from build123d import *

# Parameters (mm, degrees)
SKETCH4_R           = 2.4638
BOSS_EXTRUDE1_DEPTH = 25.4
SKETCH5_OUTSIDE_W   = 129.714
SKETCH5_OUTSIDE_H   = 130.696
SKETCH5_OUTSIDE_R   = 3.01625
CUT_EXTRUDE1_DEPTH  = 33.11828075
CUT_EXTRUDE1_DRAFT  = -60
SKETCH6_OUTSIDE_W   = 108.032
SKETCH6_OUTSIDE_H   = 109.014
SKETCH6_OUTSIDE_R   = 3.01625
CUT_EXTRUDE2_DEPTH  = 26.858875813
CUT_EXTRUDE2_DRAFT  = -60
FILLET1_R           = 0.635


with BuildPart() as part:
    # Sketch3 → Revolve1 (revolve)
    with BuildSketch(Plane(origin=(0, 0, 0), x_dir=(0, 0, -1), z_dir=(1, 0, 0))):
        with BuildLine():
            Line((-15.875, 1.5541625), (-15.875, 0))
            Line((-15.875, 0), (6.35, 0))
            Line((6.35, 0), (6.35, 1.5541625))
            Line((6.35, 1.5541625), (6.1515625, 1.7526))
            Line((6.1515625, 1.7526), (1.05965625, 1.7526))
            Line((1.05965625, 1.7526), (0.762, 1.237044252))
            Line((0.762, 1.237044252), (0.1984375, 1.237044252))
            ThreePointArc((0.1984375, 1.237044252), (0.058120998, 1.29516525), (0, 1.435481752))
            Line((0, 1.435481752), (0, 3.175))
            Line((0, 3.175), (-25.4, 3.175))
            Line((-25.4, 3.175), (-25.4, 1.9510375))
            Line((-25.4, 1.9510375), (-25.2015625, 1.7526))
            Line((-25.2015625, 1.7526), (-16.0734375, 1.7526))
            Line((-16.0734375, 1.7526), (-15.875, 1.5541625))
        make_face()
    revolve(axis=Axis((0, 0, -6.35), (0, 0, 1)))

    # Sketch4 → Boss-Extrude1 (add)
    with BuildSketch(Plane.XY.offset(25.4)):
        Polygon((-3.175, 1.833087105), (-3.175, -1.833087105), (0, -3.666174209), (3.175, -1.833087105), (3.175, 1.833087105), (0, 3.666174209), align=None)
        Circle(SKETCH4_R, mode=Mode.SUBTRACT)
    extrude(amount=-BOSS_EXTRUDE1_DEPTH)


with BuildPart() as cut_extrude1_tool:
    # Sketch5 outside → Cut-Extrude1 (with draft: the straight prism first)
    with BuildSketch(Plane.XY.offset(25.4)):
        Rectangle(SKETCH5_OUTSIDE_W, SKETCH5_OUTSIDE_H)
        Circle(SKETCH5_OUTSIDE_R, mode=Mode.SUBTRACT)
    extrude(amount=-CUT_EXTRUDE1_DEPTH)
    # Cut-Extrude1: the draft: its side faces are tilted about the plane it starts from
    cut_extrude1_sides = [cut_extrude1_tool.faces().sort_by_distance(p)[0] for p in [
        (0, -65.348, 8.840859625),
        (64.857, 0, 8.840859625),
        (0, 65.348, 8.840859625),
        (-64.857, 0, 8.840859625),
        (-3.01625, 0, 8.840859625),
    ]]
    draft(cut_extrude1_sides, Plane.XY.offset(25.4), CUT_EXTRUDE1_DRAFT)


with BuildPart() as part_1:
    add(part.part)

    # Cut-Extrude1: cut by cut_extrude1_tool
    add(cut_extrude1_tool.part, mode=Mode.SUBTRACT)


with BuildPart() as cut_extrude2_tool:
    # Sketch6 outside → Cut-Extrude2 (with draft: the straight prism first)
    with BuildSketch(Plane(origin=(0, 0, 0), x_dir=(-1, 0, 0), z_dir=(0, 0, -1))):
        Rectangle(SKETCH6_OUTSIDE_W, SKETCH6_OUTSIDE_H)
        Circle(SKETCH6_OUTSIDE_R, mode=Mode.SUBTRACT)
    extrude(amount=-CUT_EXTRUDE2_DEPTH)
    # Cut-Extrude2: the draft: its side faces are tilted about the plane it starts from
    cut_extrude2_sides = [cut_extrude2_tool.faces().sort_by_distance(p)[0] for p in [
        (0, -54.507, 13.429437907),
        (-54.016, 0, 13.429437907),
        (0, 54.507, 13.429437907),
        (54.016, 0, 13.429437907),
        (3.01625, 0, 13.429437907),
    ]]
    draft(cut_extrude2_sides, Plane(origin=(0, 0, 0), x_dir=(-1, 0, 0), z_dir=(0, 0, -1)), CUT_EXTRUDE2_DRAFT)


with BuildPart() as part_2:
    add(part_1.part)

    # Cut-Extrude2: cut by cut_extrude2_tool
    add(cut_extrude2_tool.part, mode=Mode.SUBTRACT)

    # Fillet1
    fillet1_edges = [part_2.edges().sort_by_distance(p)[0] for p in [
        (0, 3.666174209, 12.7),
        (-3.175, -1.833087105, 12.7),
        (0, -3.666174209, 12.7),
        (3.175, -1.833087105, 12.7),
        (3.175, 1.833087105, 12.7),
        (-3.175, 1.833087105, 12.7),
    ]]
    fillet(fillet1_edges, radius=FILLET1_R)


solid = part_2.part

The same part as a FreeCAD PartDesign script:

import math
import FreeCAD as App
import Part
import Sketcher
Q = App.Units.Quantity


def edges_at(feature, points):
    """Names of the edges that pass closest to the given points."""
    edges = feature.Shape.Edges
    near = lambda p: min(range(len(edges)), key=lambda i: edges[i].distToShape(Part.Vertex(*p))[0])
    return sorted({f"Edge{near(p) + 1}" for p in points})


def faces_at(feature, points):
    """Names of the faces that lie closest to the given points."""
    faces = feature.Shape.Faces
    near = lambda p: min(range(len(faces)), key=lambda i: faces[i].distToShape(Part.Vertex(*p))[0])
    return sorted({f"Face{near(p) + 1}" for p in points})


def add_polygon(sketch, points):
    """Adds a closed chain of lines whose ends are joined by coincident constraints."""
    first, n = sketch.GeometryCount, len(points)
    for a, b in zip(points, points[1:] + points[:1]):
        sketch.addGeometry(Part.LineSegment(App.Vector(*a, 0), App.Vector(*b, 0)), False)
    for i in range(n):
        sketch.addConstraint(Sketcher.Constraint("Coincident", first + i, 2, first + (i + 1) % n, 1))

doc = App.newDocument("Part")
params = doc.addObject("Spreadsheet::Sheet", "Params")
for row, (alias, value) in enumerate([
    ("sketch1_height", "1 in"),
    ("sketch1_height2", "0.875 in"),
    ("sketch1_height3", "0.359375 in"),
    ("revolution_angle", "360 deg"),
    ("sketch2_diameter", "0.194 in"),
    ("pad1_length", "1 in"),
    ("pad2_length", "33.118281 mm"),
    ("draft_angle", "60 deg"),
    ("pad3_length", "26.858876 mm"),
    ("draft2_angle", "60 deg"),
    ("fillet_radius", "0.025 in"),
], start=1):
    params.set(f"A{row}", alias)
    params.set(f"B{row}", "=" + value)
    params.setAlias(f"B{row}", alias)

body = doc.addObject("PartDesign::Body", "Body")

sketch1 = body.newObject("Sketcher::SketchObject", "Sketch")
sketch1.AttachmentSupport = (doc.getObject("YZ_Plane"), [""])
sketch1.MapMode = "FlatFace"
sketch1.addGeometry([
    Part.LineSegment(App.Vector(1.55, 15.88, 0), App.Vector(0, 15.88, 0)),
    Part.LineSegment(App.Vector(0, 15.88, 0), App.Vector(0, -6.35, 0)),
    Part.LineSegment(App.Vector(0, -6.35, 0), App.Vector(1.55, -6.35, 0)),
    Part.LineSegment(App.Vector(1.55, -6.35, 0), App.Vector(1.75, -6.15, 0)),
    Part.LineSegment(App.Vector(1.75, -6.15, 0), App.Vector(1.75, -1.06, 0)),
    Part.LineSegment(App.Vector(1.75, -1.06, 0), App.Vector(1.24, -0.76, 0)),
    Part.LineSegment(App.Vector(1.24, -0.76, 0), App.Vector(1.24, -0.2, 0)),
    Part.ArcOfCircle(Part.Circle(App.Vector(1.44, -0.2, 0), App.Vector(0, 0, 1), 0.2), math.radians(90), math.radians(180)),
    Part.LineSegment(App.Vector(1.44, 0, 0), App.Vector(3.17, 0, 0)),
    Part.LineSegment(App.Vector(3.17, 0, 0), App.Vector(3.17, 25.4, 0)),
    Part.LineSegment(App.Vector(3.17, 25.4, 0), App.Vector(1.95, 25.4, 0)),
    Part.LineSegment(App.Vector(1.95, 25.4, 0), App.Vector(1.75, 25.2, 0)),
    Part.LineSegment(App.Vector(1.75, 25.2, 0), App.Vector(1.75, 16.07, 0)),
    Part.LineSegment(App.Vector(1.75, 16.07, 0), App.Vector(1.55, 15.88, 0)),
], False)
sketch1.addConstraint([
    Sketcher.Constraint("Coincident", 0, 2, 1, 1),
    Sketcher.Constraint("Coincident", 1, 2, 2, 1),
    Sketcher.Constraint("Coincident", 2, 2, 3, 1),
    Sketcher.Constraint("Coincident", 3, 2, 4, 1),
    Sketcher.Constraint("Coincident", 4, 2, 5, 1),
    Sketcher.Constraint("Coincident", 5, 2, 6, 1),
    Sketcher.Constraint("Tangent", 6, 2, 7, 2),
    Sketcher.Constraint("Tangent", 7, 1, 8, 1),
    Sketcher.Constraint("Coincident", 8, 2, 9, 1),
    Sketcher.Constraint("Coincident", 9, 2, 10, 1),
    Sketcher.Constraint("Coincident", 10, 2, 11, 1),
    Sketcher.Constraint("Coincident", 11, 2, 12, 1),
    Sketcher.Constraint("Coincident", 12, 2, 13, 1),
    Sketcher.Constraint("Coincident", 13, 2, 0, 1),
    Sketcher.Constraint("Horizontal", 0),
    Sketcher.Constraint("Vertical", 1),
    Sketcher.Constraint("Horizontal", 2),
    Sketcher.Constraint("Vertical", 4),
    Sketcher.Constraint("Vertical", 6),
    Sketcher.Constraint("Horizontal", 8),
    Sketcher.Constraint("Vertical", 9),
    Sketcher.Constraint("Horizontal", 10),
    Sketcher.Constraint("Vertical", 12),
    Sketcher.Constraint("PointOnObject", 0, 2, -2),
    Sketcher.Constraint("PointOnObject", 7, 1, -1),
    Sketcher.Constraint("Parallel", 3, 11),
    Sketcher.Constraint("Parallel", 11, 13),
    Sketcher.Constraint("Vertical", 4, 2, 11, 2),
    Sketcher.Constraint("Vertical", 2, 2, 13, 2),
    Sketcher.Constraint("Equal", 3, 11),
    Sketcher.Constraint("DistanceY", 9, 1, 9, 2, Q("1 in")),
    Sketcher.Constraint("Angle", 3, Q("45 deg")),
    Sketcher.Constraint("Angle", 5, Q("150 deg")),
    Sketcher.Constraint("DistanceY", 1, 2, 1, 1, Q("0.875 in")),
    Sketcher.Constraint("DistanceY", 12, 2, 12, 1, Q("0.359375 in")),
    Sketcher.Constraint("DistanceY", 1, 2, -1, 1, Q("0.25 in")),
    Sketcher.Constraint("DistanceY", 5, 2, -1, 1, Q("0.03 in")),
    Sketcher.Constraint("DistanceX", -1, 1, 3, 2, Q("0.069 in")),
    Sketcher.Constraint("DistanceX", -1, 1, 8, 2, Q("0.125 in")),
    Sketcher.Constraint("DistanceY", 3, 2, 7, 3, Q("0.234375 in")),
    Sketcher.Constraint("DistanceX", 8, 1, 8, 2, Q("1.739518 mm")),
])
sketch1.setExpression("Constraints[30]", "Params.sketch1_height")
sketch1.setExpression("Constraints[33]", "Params.sketch1_height2")
sketch1.setExpression("Constraints[34]", "Params.sketch1_height3")
revolution = body.newObject("PartDesign::Revolution", "Revolution")
revolution.Profile = sketch1
revolution.ReferenceAxis = (sketch1, ["V_Axis"])
revolution.setExpression("Angle", "Params.revolution_angle")

sketch2 = body.newObject("Sketcher::SketchObject", "Sketch001")
sketch2.AttachmentSupport = (doc.getObject("XY_Plane"), [""])
sketch2.MapMode = "FlatFace"
sketch2.AttachmentOffset = App.Placement(App.Vector(0, 0, 1 * 25.4), App.Rotation())
add_polygon(sketch2, [(-3.2, 1.8), (-3.2, -1.8), (0, -3.7), (3.2, -1.8), (3.2, 1.8), (0, 3.7)])
sketch2.addGeometry(Part.Circle(App.Vector(0, 0, 0), App.Vector(0, 0, 1), 2.5), False)
sketch2.addConstraint([
    Sketcher.Constraint("Vertical", 0),
    Sketcher.Constraint("Vertical", 3),
    Sketcher.Constraint("Coincident", 6, 3, -1, 1),
    Sketcher.Constraint("Symmetric", 0, 2, 3, 2, -1, 1),
    Sketcher.Constraint("Symmetric", 1, 2, 4, 2, -1, 1),
    Sketcher.Constraint("PointOnObject", 1, 2, -2),
    Sketcher.Constraint("Parallel", 2, 5),
    Sketcher.Constraint("Horizontal", 0, 2, 2, 2),
    Sketcher.Constraint("Diameter", 6, Q("0.194 in")),
    Sketcher.Constraint("Angle", 1, Q("-30 deg")),
    Sketcher.Constraint("DistanceX", 0, 2, 2, 2, Q("0.25 in")),
    Sketcher.Constraint("DistanceY", 0, 2, 0, 1, Q("3.666174 mm")),
])
sketch2.setExpression("Constraints[14]", "Params.sketch2_diameter")
pad1 = body.newObject("PartDesign::Pad", "Pad")
pad1.Profile = sketch2
pad1.setExpression("Length", "Params.pad1_length")
pad1.Reversed = True
body2 = doc.addObject("PartDesign::Body", "Body001")

sketch3 = body2.newObject("Sketcher::SketchObject", "Sketch002")
sketch3.AttachmentSupport = (doc.getObject("XY_Plane001"), [""])
sketch3.MapMode = "FlatFace"
sketch3.AttachmentOffset = App.Placement(App.Vector(0, 0, 1 * 25.4), App.Rotation())
add_polygon(sketch3, [(-64.9, 65.3), (-64.9, -65.3), (64.9, -65.3), (64.9, 65.3)])
sketch3.addGeometry(Part.Circle(App.Vector(0, 0, 0), App.Vector(0, 0, 1), 3), False)
sketch3.addConstraint([
    Sketcher.Constraint("Vertical", 0),
    Sketcher.Constraint("Horizontal", 1),
    Sketcher.Constraint("Vertical", 2),
    Sketcher.Constraint("Horizontal", 3),
    Sketcher.Constraint("Coincident", 4, 3, -1, 1),
    Sketcher.Constraint("Symmetric", 0, 2, 2, 2, -1, 1),
    Sketcher.Constraint("Diameter", 4, Q("0.2375 in")),
    Sketcher.Constraint("DistanceX", 1, 1, 1, 2, Q("129.714 mm")),
    Sketcher.Constraint("DistanceY", 0, 2, 0, 1, Q("130.696 mm")),
])
pad2 = body2.newObject("PartDesign::Pad", "Pad001")
pad2.Profile = sketch3
pad2.setExpression("Length", "Params.pad2_length")
pad2.Reversed = True
doc.recompute()

datumplane = body2.newObject("PartDesign::Plane", "DatumPlane")
datumplane.AttachmentSupport = (doc.getObject("XY_Plane001"), [""])
datumplane.MapMode = "FlatFace"
datumplane.AttachmentOffset = App.Placement(App.Vector(0, 0, 1 * 25.4), App.Rotation())
draft = body2.newObject("PartDesign::Draft", "Draft")
draft.Base = (pad2, faces_at(pad2, [
    (0, -65.348, 8.841),
    (64.857, 0, 8.841),
    (0, 65.348, 8.841),
    (-64.857, 0, 8.841),
    (-3.016, 0, 8.841),
]))
draft.NeutralPlane = (datumplane, [""])
draft.setExpression("Angle", "Params.draft_angle")
draft.Reversed = True
doc.recompute()

boolean = body.newObject("PartDesign::Boolean", "Boolean")
boolean.Type = "Cut"
boolean.addObjects([body2])
body3 = doc.addObject("PartDesign::Body", "Body002")

sketch4 = body3.newObject("Sketcher::SketchObject", "Sketch003")
sketch4.AttachmentSupport = (doc.getObject("XY_Plane002"), [""])
sketch4.MapMode = "FlatFace"
add_polygon(sketch4, [(54, 54.5), (54, -54.5), (-54, -54.5), (-54, 54.5)])
sketch4.addGeometry(Part.Circle(App.Vector(0, 0, 0), App.Vector(0, 0, 1), 3), False)
sketch4.addConstraint([
    Sketcher.Constraint("Vertical", 0),
    Sketcher.Constraint("Horizontal", 1),
    Sketcher.Constraint("Vertical", 2),
    Sketcher.Constraint("Horizontal", 3),
    Sketcher.Constraint("Coincident", 4, 3, -1, 1),
    Sketcher.Constraint("Symmetric", 0, 2, 2, 2, -1, 1),
    Sketcher.Constraint("Diameter", 4, Q("0.2375 in")),
    Sketcher.Constraint("DistanceX", 1, 2, 1, 1, Q("108.032 mm")),
    Sketcher.Constraint("DistanceY", 0, 2, 0, 1, Q("109.014 mm")),
])
pad3 = body3.newObject("PartDesign::Pad", "Pad002")
pad3.Profile = sketch4
pad3.setExpression("Length", "Params.pad3_length")
doc.recompute()

draft2 = body3.newObject("PartDesign::Draft", "Draft001")
draft2.Base = (pad3, faces_at(pad3, [
    (0, -54.507, 13.429),
    (-54.016, 0, 13.429),
    (0, 54.507, 13.429),
    (54.016, 0, 13.429),
    (3.016, 0, 13.429),
]))
draft2.NeutralPlane = (doc.getObject("XY_Plane002"), [""])
draft2.setExpression("Angle", "Params.draft2_angle")
draft2.Reversed = False
doc.recompute()

boolean2 = body.newObject("PartDesign::Boolean", "Boolean001")
boolean2.Type = "Cut"
boolean2.addObjects([body3])
doc.recompute()

fillet = body.newObject("PartDesign::Fillet", "Fillet")
fillet.Base = (boolean2, edges_at(boolean2, [
    (0, 3.666, 12.7),
    (-3.175, -1.833, 12.7),
    (0, -3.666, 12.7),
    (3.175, -1.833, 12.7),
    (3.175, 1.833, 12.7),
    (-3.175, 1.833, 12.7),
]))
fillet.setExpression("Radius", "Params.fillet_radius")

doc.recompute()
